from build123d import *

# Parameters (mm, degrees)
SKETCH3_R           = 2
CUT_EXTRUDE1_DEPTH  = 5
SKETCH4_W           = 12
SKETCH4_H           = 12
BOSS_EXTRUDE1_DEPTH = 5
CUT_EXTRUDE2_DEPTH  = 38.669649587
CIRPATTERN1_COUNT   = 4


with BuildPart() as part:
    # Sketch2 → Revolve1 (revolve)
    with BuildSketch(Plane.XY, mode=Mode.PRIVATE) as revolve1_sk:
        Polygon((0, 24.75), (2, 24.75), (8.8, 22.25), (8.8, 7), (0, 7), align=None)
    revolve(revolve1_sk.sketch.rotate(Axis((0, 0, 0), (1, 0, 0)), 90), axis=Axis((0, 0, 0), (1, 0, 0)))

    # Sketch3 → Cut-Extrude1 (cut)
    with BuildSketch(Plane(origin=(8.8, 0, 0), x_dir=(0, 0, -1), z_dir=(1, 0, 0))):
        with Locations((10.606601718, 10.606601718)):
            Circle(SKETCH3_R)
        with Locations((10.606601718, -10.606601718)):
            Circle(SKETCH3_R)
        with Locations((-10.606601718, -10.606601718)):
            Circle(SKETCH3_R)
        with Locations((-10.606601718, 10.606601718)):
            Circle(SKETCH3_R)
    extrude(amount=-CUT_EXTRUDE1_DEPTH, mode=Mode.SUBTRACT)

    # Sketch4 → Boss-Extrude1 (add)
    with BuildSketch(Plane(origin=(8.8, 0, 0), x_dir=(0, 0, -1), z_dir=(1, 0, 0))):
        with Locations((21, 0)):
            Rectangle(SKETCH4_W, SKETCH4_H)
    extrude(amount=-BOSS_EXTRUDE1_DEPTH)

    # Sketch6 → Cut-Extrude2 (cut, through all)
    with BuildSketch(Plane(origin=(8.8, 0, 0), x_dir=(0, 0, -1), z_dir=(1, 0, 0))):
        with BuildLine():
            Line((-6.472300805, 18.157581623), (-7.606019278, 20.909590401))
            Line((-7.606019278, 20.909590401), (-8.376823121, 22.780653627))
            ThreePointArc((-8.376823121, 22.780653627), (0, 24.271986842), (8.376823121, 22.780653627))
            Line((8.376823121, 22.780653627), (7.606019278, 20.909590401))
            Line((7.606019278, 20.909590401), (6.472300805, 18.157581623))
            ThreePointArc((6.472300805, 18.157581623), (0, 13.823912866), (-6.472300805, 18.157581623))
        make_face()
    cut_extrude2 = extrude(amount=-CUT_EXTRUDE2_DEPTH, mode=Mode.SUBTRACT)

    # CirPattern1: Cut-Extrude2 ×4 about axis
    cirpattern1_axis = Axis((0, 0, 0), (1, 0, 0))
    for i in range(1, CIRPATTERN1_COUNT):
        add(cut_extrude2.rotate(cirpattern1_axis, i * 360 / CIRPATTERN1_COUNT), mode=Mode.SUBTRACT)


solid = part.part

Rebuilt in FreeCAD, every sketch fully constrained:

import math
import FreeCAD as App
import Part
import Sketcher

V = App.Vector
Q = App.Units.Quantity

doc = App.newDocument("Part")
params = doc.addObject("Spreadsheet::Sheet", "Params")
for row, (alias, value) in enumerate([
    ("sketch1_width", "2 mm"),
    ("sketch1_width2", "8.8 mm"),
    ("sketch1_height", "17.75 mm"),
    ("sketch1_height2", "15.25 mm"),
    ("revolution_angle", "360 deg"),
    ("sketch2_diameter", "4 mm"),
    ("pocket1_length", "5 mm"),
    ("sketch3_width", "12 mm"),
    ("pad1_length", "5 mm"),
    ("sketch4_radius", "7 mm"),
], start=1):
    params.set(f"A{row}", alias)
    params.set(f"B{row}", "=" + value)
    params.setAlias(f"B{row}", alias)

body = doc.addObject("PartDesign::Body", "Body")
body.AllowCompound = True

sketch1 = body.newObject("Sketcher::SketchObject", "Sketch")
sketch1.AttachmentSupport = (doc.getObject("XY_Plane"), [""])
sketch1.MapMode = "FlatFace"
sketch1.addGeometry([
    Part.LineSegment(V(2, 24.75, 0), V(0, 24.75, 0)),
    Part.LineSegment(V(0, 24.75, 0), V(0, 7, 0)),
    Part.LineSegment(V(0, 7, 0), V(8.8, 7, 0)),
    Part.LineSegment(V(8.8, 7, 0), V(8.8, 22.25, 0)),
    Part.LineSegment(V(8.8, 22.25, 0), V(2, 24.75, 0)),
], False)
sketch1.addConstraint([
    Sketcher.Constraint("Coincident", 0, 2, 1, 1),
    Sketcher.Constraint("Coincident", 1, 2, 2, 1),
    Sketcher.Constraint("Coincident", 2, 2, 3, 1),
    Sketcher.Constraint("Coincident", 3, 2, 4, 1),
    Sketcher.Constraint("Coincident", 4, 2, 0, 1),
    Sketcher.Constraint("Horizontal", 0),
    Sketcher.Constraint("Vertical", 1),
    Sketcher.Constraint("Horizontal", 2),
    Sketcher.Constraint("Vertical", 3),
    Sketcher.Constraint("PointOnObject", 0, 2, -2),
    Sketcher.Constraint("DistanceX", 0, 2, 0, 1, Q("2 mm")),
    Sketcher.Constraint("DistanceX", 2, 1, 2, 2, Q("8.8 mm")),
    Sketcher.Constraint("DistanceY", -1, 1, 1, 2, Q("7 mm")),
    Sketcher.Constraint("DistanceY", 1, 2, 1, 1, Q("17.75 mm")),
    Sketcher.Constraint("DistanceY", 3, 1, 3, 2, Q("15.25 mm")),
])
sketch1.setExpression("Constraints[10]", "Params.sketch1_width")
sketch1.setExpression("Constraints[11]", "Params.sketch1_width2")
sketch1.setExpression("Constraints[13]", "Params.sketch1_height")
sketch1.setExpression("Constraints[14]", "Params.sketch1_height2")
revolution = body.newObject("PartDesign::Revolution", "Revolution")
revolution.Profile = sketch1
revolution.ReferenceAxis = (sketch1, ["H_Axis"])
revolution.setExpression("Angle", "Params.revolution_angle")

sketch2 = body.newObject("Sketcher::SketchObject", "Sketch001")
sketch2.AttachmentSupport = (doc.getObject("YZ_Plane"), [""])
sketch2.MapMode = "FlatFace"
sketch2.AttachmentOffset = App.Placement(V(0, 0, 8.8), App.Rotation())
sketch2.addGeometry([
    Part.Circle(V(10.606602, -10.606602, 0), V(0, 0, 1), 2),
    Part.Circle(V(-10.606602, -10.606602, 0), V(0, 0, 1), 2),
    Part.Circle(V(-10.606602, 10.606602, 0), V(0, 0, 1), 2),
    Part.Circle(V(10.606602, 10.606602, 0), V(0, 0, 1), 2),
], False)
sketch2.addConstraint([
    Sketcher.Constraint("Equal", 0, 1),
    Sketcher.Constraint("Equal", 1, 2),
    Sketcher.Constraint("Equal", 2, 3),
    Sketcher.Constraint("Symmetric", 0, 3, 2, 3, -1, 1),
    Sketcher.Constraint("Symmetric", 1, 3, 3, 3, -1, 1),
    Sketcher.Constraint("Symmetric", 0, 3, 1, 3, -2),
    Sketcher.Constraint("Diameter", 0, Q("4 mm")),
    Sketcher.Constraint("DistanceX", -1, 1, 0, 3, Q("10.606602 mm")),
    Sketcher.Constraint("DistanceY", 0, 3, -1, 1, Q("10.606602 mm")),
])
sketch2.setExpression("Constraints[6]", "Params.sketch2_diameter")
pocket1 = body.newObject("PartDesign::Pocket", "Pocket")
pocket1.Profile = sketch2
pocket1.setExpression("Length", "Params.pocket1_length")

sketch3 = body.newObject("Sketcher::SketchObject", "Sketch002")
sketch3.AttachmentSupport = (doc.getObject("YZ_Plane"), [""])
sketch3.MapMode = "FlatFace"
sketch3.AttachmentOffset = App.Placement(V(0, 0, 8.8), App.Rotation())
sketch3.addGeometry([
    Part.LineSegment(V(6, -15, 0), V(-6, -15, 0)),
    Part.LineSegment(V(-6, -15, 0), V(-6, -27, 0)),
    Part.LineSegment(V(-6, -27, 0), V(6, -27, 0)),
    Part.LineSegment(V(6, -27, 0), V(6, -15, 0)),
], False)
sketch3.addConstraint([
    Sketcher.Constraint("Coincident", 0, 2, 1, 1),
    Sketcher.Constraint("Coincident", 1, 2, 2, 1),
    Sketcher.Constraint("Coincident", 2, 2, 3, 1),
    Sketcher.Constraint("Coincident", 3, 2, 0, 1),
    Sketcher.Constraint("Horizontal", 0),
    Sketcher.Constraint("Vertical", 1),
    Sketcher.Constraint("Horizontal", 2),
    Sketcher.Constraint("Vertical", 3),
    Sketcher.Constraint("Equal", 2, 1),
    Sketcher.Constraint("DistanceX", 0, 2, 0, 1, Q("12 mm")),
    Sketcher.Constraint("DistanceX", 0, 2, -1, 1, Q("6 mm")),
    Sketcher.Constraint("DistanceY", 0, 2, -1, 1, Q("15 mm")),
])
sketch3.setExpression("Constraints[9]", "Params.sketch3_width")
pad1 = body.newObject("PartDesign::Pad", "Pad")
pad1.Profile = sketch3
pad1.setExpression("Length", "Params.pad1_length")
pad1.Reversed = True

sketch4 = body.newObject("Sketcher::SketchObject", "Sketch003")
sketch4.AttachmentSupport = (doc.getObject("YZ_Plane"), [""])
sketch4.MapMode = "FlatFace"
sketch4.AttachmentOffset = App.Placement(V(0, 0, 8.8), App.Rotation())
sketch4.addGeometry([
    Part.LineSegment(V(20.90959, 7.606019, 0), V(18.157582, 6.472301, 0)),
    Part.ArcOfCircle(Part.Circle(V(20.823913, 0, 0), V(0, 0, 1), 7), math.radians(112.389718), math.radians(247.610282)),
    Part.LineSegment(V(18.157582, -6.472301, 0), V(20.90959, -7.606019, 0)),
    Part.LineSegment(V(20.90959, -7.606019, 0), V(22.780654, -8.376823, 0)),
    Part.ArcOfCircle(Part.Circle(V(0, 0, 0), V(0, 0, 1), 24.271987), math.radians(-20.18931), math.radians(20.18931)),
    Part.LineSegment(V(22.780654, 8.376823, 0), V(20.90959, 7.606019, 0)),
], False)
sketch4.addConstraint([
    Sketcher.Constraint("Tangent", 0, 2, 1, 1),
    Sketcher.Constraint("Tangent", 1, 2, 2, 1),
    Sketcher.Constraint("Coincident", 2, 2, 3, 1),
    Sketcher.Constraint("Coincident", 3, 2, 4, 1),
    Sketcher.Constraint("Coincident", 4, 2, 5, 1),
    Sketcher.Constraint("Coincident", 5, 2, 0, 1),
    Sketcher.Constraint("Coincident", 4, 3, -1, 1),
    Sketcher.Constraint("Symmetric", 0, 2, 1, 2, -1),
    Sketcher.Constraint("Parallel", 2, 3),
    Sketcher.Constraint("Parallel", 0, 5),
    Sketcher.Constraint("Vertical", 2, 2, 5, 2),
    Sketcher.Constraint("Radius", 1, Q("7 mm")),
    Sketcher.Constraint("Radius", 4, Q("24.271987 mm")),
    Sketcher.Constraint("DistanceY", -1, 1, 0, 2, Q("6.472301 mm")),
    Sketcher.Constraint("DistanceX", -1, 1, 0, 2, Q("18.157582 mm")),
    Sketcher.Constraint("DistanceX", -1, 1, 2, 2, Q("20.90959 mm")),
])
sketch4.setExpression("Constraints[11]", "Params.sketch4_radius")
pocket2 = body.newObject("PartDesign::Pocket", "Pocket001")
pocket2.Profile = sketch4
pocket2.Type = "ThroughAll"
doc.recompute()

polarpattern = body.newObject("PartDesign::PolarPattern", "PolarPattern")
polarpattern.Originals = [pocket2]
polarpattern.Axis = (doc.getObject("X_Axis"), [""])
polarpattern.Angle = 360
polarpattern.Occurrences = 4
body.Tip = polarpattern

doc.recompute()
